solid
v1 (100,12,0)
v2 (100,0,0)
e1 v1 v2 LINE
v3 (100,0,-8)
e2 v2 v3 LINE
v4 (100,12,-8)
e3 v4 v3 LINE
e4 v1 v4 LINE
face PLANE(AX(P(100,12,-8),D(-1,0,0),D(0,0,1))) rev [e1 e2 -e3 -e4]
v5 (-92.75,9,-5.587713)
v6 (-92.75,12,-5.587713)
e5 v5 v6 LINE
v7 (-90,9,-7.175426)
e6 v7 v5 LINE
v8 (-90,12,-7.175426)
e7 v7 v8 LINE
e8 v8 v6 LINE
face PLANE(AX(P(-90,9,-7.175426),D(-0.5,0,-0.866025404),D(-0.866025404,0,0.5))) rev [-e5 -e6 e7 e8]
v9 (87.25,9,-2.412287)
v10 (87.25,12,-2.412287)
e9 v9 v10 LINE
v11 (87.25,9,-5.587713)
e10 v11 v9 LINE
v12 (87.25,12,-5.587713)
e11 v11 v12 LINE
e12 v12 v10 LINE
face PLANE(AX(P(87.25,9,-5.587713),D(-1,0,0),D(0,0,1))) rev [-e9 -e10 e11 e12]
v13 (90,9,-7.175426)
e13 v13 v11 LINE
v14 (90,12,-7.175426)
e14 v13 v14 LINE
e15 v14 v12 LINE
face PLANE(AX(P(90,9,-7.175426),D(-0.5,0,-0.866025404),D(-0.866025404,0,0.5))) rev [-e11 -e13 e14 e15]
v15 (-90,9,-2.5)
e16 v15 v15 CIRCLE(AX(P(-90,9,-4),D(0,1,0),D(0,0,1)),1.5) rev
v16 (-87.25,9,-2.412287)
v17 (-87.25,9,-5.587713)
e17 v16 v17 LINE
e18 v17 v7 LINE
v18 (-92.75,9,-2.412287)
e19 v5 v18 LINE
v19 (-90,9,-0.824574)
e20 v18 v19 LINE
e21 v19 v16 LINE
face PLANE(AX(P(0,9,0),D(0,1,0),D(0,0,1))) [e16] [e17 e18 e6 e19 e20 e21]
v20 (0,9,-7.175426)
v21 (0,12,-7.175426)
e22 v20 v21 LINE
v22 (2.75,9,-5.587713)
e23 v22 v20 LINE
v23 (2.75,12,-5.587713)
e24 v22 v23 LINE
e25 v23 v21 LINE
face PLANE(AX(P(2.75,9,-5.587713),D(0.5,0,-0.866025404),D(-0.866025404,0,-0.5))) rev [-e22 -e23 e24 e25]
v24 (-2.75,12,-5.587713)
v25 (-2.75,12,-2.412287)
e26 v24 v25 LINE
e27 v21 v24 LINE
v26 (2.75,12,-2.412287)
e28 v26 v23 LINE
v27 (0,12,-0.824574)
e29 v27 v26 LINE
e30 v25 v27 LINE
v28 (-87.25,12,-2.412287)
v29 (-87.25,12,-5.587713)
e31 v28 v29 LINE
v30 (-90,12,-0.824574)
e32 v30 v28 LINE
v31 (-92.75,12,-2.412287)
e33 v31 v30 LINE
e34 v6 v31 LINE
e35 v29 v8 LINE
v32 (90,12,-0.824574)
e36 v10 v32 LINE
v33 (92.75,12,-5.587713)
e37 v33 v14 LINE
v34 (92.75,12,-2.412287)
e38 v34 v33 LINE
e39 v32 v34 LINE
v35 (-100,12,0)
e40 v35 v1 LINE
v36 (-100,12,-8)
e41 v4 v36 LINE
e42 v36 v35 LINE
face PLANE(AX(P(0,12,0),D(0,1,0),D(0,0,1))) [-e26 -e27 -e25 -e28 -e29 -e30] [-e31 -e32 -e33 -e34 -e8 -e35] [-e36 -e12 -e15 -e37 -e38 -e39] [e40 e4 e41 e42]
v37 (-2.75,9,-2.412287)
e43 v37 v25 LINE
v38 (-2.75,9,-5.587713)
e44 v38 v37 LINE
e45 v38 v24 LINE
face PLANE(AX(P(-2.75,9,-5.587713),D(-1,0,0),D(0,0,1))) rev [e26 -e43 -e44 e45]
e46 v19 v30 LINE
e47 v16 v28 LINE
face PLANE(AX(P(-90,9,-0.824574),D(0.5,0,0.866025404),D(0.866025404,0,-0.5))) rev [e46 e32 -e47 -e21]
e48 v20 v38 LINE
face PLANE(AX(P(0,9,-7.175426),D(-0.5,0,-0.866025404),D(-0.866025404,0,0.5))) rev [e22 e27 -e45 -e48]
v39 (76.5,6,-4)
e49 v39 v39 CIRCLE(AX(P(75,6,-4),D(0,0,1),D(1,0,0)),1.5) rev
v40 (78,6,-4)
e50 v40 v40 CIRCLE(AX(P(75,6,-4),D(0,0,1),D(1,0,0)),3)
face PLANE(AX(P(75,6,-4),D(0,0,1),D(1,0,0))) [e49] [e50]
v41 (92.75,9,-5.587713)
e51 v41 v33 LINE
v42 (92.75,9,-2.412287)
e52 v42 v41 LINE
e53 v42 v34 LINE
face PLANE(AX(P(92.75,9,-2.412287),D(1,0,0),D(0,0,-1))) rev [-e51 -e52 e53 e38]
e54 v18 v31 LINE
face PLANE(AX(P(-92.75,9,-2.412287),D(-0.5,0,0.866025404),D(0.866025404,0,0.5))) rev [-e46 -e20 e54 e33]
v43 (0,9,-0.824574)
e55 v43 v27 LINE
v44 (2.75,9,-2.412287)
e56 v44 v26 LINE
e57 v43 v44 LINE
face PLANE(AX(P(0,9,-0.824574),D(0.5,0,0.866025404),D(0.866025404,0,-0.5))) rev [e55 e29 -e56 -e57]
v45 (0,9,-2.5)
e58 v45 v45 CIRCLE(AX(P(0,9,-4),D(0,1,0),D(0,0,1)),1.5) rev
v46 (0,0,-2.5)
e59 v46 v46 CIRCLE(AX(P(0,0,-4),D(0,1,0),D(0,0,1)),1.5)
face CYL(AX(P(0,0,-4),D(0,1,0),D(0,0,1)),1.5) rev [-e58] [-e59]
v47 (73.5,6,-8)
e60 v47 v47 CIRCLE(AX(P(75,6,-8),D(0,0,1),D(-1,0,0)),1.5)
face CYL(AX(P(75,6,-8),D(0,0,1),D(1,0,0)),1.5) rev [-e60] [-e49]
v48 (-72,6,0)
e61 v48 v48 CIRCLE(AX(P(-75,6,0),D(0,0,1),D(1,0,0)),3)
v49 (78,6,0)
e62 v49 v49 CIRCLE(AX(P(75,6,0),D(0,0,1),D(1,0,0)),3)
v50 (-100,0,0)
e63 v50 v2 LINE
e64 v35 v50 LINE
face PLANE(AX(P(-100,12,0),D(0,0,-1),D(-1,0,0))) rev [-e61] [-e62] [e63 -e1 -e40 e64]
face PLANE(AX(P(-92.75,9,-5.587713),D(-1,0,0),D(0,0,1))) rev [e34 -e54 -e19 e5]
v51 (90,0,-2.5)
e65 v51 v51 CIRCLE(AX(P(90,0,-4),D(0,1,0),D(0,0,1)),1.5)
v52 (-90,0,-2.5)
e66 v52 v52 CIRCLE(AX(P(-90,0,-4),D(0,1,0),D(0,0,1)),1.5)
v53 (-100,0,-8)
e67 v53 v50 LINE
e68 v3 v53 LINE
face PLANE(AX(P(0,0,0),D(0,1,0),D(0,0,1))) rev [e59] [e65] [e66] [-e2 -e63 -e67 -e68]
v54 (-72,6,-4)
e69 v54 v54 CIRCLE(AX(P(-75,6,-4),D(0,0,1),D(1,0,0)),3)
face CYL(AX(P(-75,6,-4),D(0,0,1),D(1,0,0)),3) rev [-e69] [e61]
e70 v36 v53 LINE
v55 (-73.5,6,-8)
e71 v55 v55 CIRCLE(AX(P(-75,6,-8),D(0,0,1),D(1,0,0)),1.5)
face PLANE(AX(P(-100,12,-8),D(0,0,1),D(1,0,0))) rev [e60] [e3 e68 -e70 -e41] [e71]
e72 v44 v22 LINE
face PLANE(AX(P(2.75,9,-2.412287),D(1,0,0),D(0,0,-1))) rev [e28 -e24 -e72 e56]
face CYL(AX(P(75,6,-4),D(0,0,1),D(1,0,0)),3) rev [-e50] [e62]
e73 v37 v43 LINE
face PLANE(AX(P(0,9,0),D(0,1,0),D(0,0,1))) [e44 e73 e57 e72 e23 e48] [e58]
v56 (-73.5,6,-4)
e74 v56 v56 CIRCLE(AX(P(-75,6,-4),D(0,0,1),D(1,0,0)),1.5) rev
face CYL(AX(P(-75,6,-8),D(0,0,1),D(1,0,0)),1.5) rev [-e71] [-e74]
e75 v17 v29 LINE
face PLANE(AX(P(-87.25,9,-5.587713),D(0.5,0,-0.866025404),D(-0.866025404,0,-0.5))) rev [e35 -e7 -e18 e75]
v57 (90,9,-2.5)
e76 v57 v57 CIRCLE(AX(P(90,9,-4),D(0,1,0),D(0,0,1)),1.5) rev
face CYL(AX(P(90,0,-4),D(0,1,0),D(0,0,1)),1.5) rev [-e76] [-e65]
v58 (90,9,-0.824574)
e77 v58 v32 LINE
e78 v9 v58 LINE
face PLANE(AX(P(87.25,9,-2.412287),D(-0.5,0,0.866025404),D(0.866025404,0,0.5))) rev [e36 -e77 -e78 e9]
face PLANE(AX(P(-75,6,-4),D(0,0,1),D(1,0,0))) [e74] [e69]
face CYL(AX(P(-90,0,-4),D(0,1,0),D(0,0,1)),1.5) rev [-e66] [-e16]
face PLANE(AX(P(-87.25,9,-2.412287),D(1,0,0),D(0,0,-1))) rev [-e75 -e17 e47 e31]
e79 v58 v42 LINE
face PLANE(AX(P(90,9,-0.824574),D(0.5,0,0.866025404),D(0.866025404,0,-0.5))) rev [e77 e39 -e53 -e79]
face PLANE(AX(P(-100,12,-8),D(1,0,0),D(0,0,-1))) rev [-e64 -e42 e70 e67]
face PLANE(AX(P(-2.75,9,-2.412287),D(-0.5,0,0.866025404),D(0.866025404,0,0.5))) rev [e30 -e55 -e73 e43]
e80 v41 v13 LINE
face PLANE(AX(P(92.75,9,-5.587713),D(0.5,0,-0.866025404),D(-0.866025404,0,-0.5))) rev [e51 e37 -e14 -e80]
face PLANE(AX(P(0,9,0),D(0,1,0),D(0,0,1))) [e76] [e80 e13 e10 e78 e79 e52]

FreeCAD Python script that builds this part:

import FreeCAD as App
import Part
import Sketcher
from FreeCAD import Vector
Q = App.Units.Quantity


def add_polygon(sketch, points):
    """Adds a closed chain of lines whose ends are joined by coincident constraints."""
    first, n = sketch.GeometryCount, len(points)
    for a, b in zip(points, points[1:] + points[:1]):
        sketch.addGeometry(Part.LineSegment(App.Vector(*a, 0), App.Vector(*b, 0)), False)
    for i in range(n):
        sketch.addConstraint(Sketcher.Constraint("Coincident", first + i, 2, first + (i + 1) % n, 1))

doc = App.newDocument("Part")
body = doc.addObject("PartDesign::Body", "Body")

# Sketch on XZ plane
sketch1 = body.newObject("Sketcher::SketchObject", "Sketch")
sketch1.AttachmentSupport = (doc.getObject("XZ_Plane"), [""])
sketch1.MapMode = "FlatFace"
add_polygon(sketch1, [(-100, -8), (-100, 0), (100, 0), (100, -8)])  # lines 0-3
sketch1.addConstraint(Sketcher.Constraint("Vertical", 0))
sketch1.addConstraint(Sketcher.Constraint("Horizontal", 1))
sketch1.addConstraint(Sketcher.Constraint("Vertical", 2))
sketch1.addConstraint(Sketcher.Constraint("Horizontal", 3))
sketch1.addConstraint(Sketcher.Constraint("Symmetric", 0, 2, 1, 2, -1, 1))
sketch1.addConstraint(Sketcher.Constraint("DistanceX", 1, 1, 1, 2, 200.0))
sketch1.addConstraint(Sketcher.Constraint("DistanceY", 0, 1, 0, 2, 8.0))
pad1 = body.newObject("PartDesign::Pad", "Pad")
pad1.Profile = sketch1
pad1.Length = 12
pad1.Reversed = True

# Sketch on XZ plane
sketch2 = body.newObject("Sketcher::SketchObject", "Sketch001")
sketch2.AttachmentSupport = (doc.getObject("XZ_Plane"), [""])
sketch2.MapMode = "FlatFace"
sketch2.AttachmentOffset = App.Placement(Vector(0, 0, -12), App.Rotation())
sketch2.addGeometry(Part.Circle(Vector(-90, -4, 0), Vector(0, 0, 1), 1.5), False)
sketch2.addGeometry(Part.Circle(Vector(0, -4, 0), Vector(0, 0, 1), 1.5), False)
sketch2.addGeometry(Part.Circle(Vector(90, -4, 0), Vector(0, 0, 1), 1.5), False)
sketch2.addConstraint(Sketcher.Constraint("Equal", 0, 1))
sketch2.addConstraint(Sketcher.Constraint("Equal", 1, 2))
sketch2.addConstraint(Sketcher.Constraint("Symmetric", 0, 3, 2, 3, -2))
sketch2.addConstraint(Sketcher.Constraint("PointOnObject", 1, 3, -2))
sketch2.addConstraint(Sketcher.Constraint("Horizontal", 0, 3, 1, 3))
sketch2.addConstraint(Sketcher.Constraint("Diameter", 0, 3.0))
sketch2.addConstraint(Sketcher.Constraint("DistanceX", 0, 3, -1, 1, 90.0))
sketch2.addConstraint(Sketcher.Constraint("DistanceY", 0, 3, -1, 1, 4.0))
pocket1 = body.newObject("PartDesign::Pocket", "Pocket")
pocket1.Profile = sketch2
pocket1.Type = "ThroughAll"
pocket1.Reversed = True

# Sketch on XY plane
sketch3 = body.newObject("Sketcher::SketchObject", "Sketch002")
sketch3.AttachmentSupport = (doc.getObject("XY_Plane"), [""])
sketch3.MapMode = "FlatFace"
sketch3.addGeometry(Part.Circle(Vector(-75, 6, 0), Vector(0, 0, 1), 1.5), False)
sketch3.addGeometry(Part.Circle(Vector(75, 6, 0), Vector(0, 0, 1), 1.5), False)
sketch3.addConstraint(Sketcher.Constraint("Equal", 0, 1))
sketch3.addConstraint(Sketcher.Constraint("Symmetric", 0, 3, 1, 3, -2))
sketch3.addConstraint(Sketcher.Constraint("Diameter", 0, 3.0))
sketch3.addConstraint(Sketcher.Constraint("DistanceX", 0, 3, -1, 1, 75.0))
sketch3.addConstraint(Sketcher.Constraint("DistanceY", -1, 1, 0, 3, 6.0))
pocket2 = body.newObject("PartDesign::Pocket", "Pocket001")
pocket2.Profile = sketch3
pocket2.Type = "ThroughAll"

# Sketch on XY plane
sketch4 = body.newObject("Sketcher::SketchObject", "Sketch003")
sketch4.AttachmentSupport = (doc.getObject("XY_Plane"), [""])
sketch4.MapMode = "FlatFace"
sketch4.addGeometry(Part.Circle(Vector(-75, 6, 0), Vector(0, 0, 1), 3), False)
sketch4.addGeometry(Part.Circle(Vector(75, 6, 0), Vector(0, 0, 1), 3), False)
sketch4.addConstraint(Sketcher.Constraint("Equal", 0, 1))
sketch4.addConstraint(Sketcher.Constraint("Symmetric", 0, 3, 1, 3, -2))
sketch4.addConstraint(Sketcher.Constraint("Diameter", 0, 6.0))
sketch4.addConstraint(Sketcher.Constraint("DistanceX", 0, 3, -1, 1, 75.0))
sketch4.addConstraint(Sketcher.Constraint("DistanceY", -1, 1, 0, 3, 6.0))
pocket3 = body.newObject("PartDesign::Pocket", "Pocket002")
pocket3.Profile = sketch4
pocket3.Length = 4

# Sketch on XZ plane
sketch5 = body.newObject("Sketcher::SketchObject", "Sketch004")
sketch5.AttachmentSupport = (doc.getObject("XZ_Plane"), [""])
sketch5.MapMode = "FlatFace"
sketch5.AttachmentOffset = App.Placement(Vector(0, 0, -12), App.Rotation())
add_polygon(sketch5, [(-87.2, -5.6), (-90, -7.2), (-92.8, -5.6), (-92.8, -2.4), (-90, -0.8), (-87.2, -2.4)])  # lines 0-5
add_polygon(sketch5, [(2.8, -5.6), (0, -7.2), (-2.8, -5.6), (-2.8, -2.4), (0, -0.8), (2.8, -2.4)])  # lines 6-11
add_polygon(sketch5, [(92.8, -5.6), (90, -7.2), (87.2, -5.6), (87.2, -2.4), (90, -0.8), (92.8, -2.4)])  # lines 12-17
sketch5.addConstraint(Sketcher.Constraint("Vertical", 2))
sketch5.addConstraint(Sketcher.Constraint("Vertical", 5))
sketch5.addConstraint(Sketcher.Constraint("Vertical", 8))
sketch5.addConstraint(Sketcher.Constraint("Vertical", 11))
sketch5.addConstraint(Sketcher.Constraint("Vertical", 14))
sketch5.addConstraint(Sketcher.Constraint("Vertical", 17))
sketch5.addConstraint(Sketcher.Constraint("Symmetric", 8, 2, 10, 2, -2))
sketch5.addConstraint(Sketcher.Constraint("Symmetric", 0, 2, 12, 2, -2))
sketch5.addConstraint(Sketcher.Constraint("Symmetric", 5, 2, 13, 2, -2))
sketch5.addConstraint(Sketcher.Constraint("Symmetric", 3, 2, 15, 2, -2))
sketch5.addConstraint(Sketcher.Constraint("Symmetric", 2, 2, 16, 2, -2))
sketch5.addConstraint(Sketcher.Constraint("PointOnObject", 6, 2, -2))
sketch5.addConstraint(Sketcher.Constraint("PointOnObject", 9, 2, -2))
sketch5.addConstraint(Sketcher.Constraint("Parallel", 0, 3))
sketch5.addConstraint(Sketcher.Constraint("Parallel", 1, 4))
sketch5.addConstraint(Sketcher.Constraint("Parallel", 3, 6))
sketch5.addConstraint(Sketcher.Constraint("Parallel", 4, 7))
sketch5.addConstraint(Sketcher.Constraint("Parallel", 6, 9))
sketch5.addConstraint(Sketcher.Constraint("Parallel", 7, 10))
sketch5.addConstraint(Sketcher.Constraint("Parallel", 9, 12))
sketch5.addConstraint(Sketcher.Constraint("Parallel", 12, 15))
sketch5.addConstraint(Sketcher.Constraint("Horizontal", 2, 2, 4, 2))
sketch5.addConstraint(Sketcher.Constraint("Horizontal", 1, 2, 5, 2))
sketch5.addConstraint(Sketcher.Constraint("Horizontal", 0, 2, 6, 2))
sketch5.addConstraint(Sketcher.Constraint("Horizontal", 5, 2, 7, 2))
sketch5.addConstraint(Sketcher.Constraint("Horizontal", 4, 2, 8, 2))
sketch5.addConstraint(Sketcher.Constraint("Angle", 0, Q("-150 deg")))
sketch5.addConstraint(Sketcher.Constraint("DistanceX", 0, 2, -1, 1, 90.0))
sketch5.addConstraint(Sketcher.Constraint("DistanceX", 2, 2, 4, 2, 5.5))
sketch5.addConstraint(Sketcher.Constraint("DistanceY", 2, 1, 2, 2, 3.175426))
sketch5.addConstraint(Sketcher.Constraint("DistanceY", 0, 2, -1, 1, 7.175426))
pocket4 = body.newObject("PartDesign::Pocket", "Pocket003")
pocket4.Profile = sketch5
pocket4.Length = 3
pocket4.Reversed = True

doc.recompute()
